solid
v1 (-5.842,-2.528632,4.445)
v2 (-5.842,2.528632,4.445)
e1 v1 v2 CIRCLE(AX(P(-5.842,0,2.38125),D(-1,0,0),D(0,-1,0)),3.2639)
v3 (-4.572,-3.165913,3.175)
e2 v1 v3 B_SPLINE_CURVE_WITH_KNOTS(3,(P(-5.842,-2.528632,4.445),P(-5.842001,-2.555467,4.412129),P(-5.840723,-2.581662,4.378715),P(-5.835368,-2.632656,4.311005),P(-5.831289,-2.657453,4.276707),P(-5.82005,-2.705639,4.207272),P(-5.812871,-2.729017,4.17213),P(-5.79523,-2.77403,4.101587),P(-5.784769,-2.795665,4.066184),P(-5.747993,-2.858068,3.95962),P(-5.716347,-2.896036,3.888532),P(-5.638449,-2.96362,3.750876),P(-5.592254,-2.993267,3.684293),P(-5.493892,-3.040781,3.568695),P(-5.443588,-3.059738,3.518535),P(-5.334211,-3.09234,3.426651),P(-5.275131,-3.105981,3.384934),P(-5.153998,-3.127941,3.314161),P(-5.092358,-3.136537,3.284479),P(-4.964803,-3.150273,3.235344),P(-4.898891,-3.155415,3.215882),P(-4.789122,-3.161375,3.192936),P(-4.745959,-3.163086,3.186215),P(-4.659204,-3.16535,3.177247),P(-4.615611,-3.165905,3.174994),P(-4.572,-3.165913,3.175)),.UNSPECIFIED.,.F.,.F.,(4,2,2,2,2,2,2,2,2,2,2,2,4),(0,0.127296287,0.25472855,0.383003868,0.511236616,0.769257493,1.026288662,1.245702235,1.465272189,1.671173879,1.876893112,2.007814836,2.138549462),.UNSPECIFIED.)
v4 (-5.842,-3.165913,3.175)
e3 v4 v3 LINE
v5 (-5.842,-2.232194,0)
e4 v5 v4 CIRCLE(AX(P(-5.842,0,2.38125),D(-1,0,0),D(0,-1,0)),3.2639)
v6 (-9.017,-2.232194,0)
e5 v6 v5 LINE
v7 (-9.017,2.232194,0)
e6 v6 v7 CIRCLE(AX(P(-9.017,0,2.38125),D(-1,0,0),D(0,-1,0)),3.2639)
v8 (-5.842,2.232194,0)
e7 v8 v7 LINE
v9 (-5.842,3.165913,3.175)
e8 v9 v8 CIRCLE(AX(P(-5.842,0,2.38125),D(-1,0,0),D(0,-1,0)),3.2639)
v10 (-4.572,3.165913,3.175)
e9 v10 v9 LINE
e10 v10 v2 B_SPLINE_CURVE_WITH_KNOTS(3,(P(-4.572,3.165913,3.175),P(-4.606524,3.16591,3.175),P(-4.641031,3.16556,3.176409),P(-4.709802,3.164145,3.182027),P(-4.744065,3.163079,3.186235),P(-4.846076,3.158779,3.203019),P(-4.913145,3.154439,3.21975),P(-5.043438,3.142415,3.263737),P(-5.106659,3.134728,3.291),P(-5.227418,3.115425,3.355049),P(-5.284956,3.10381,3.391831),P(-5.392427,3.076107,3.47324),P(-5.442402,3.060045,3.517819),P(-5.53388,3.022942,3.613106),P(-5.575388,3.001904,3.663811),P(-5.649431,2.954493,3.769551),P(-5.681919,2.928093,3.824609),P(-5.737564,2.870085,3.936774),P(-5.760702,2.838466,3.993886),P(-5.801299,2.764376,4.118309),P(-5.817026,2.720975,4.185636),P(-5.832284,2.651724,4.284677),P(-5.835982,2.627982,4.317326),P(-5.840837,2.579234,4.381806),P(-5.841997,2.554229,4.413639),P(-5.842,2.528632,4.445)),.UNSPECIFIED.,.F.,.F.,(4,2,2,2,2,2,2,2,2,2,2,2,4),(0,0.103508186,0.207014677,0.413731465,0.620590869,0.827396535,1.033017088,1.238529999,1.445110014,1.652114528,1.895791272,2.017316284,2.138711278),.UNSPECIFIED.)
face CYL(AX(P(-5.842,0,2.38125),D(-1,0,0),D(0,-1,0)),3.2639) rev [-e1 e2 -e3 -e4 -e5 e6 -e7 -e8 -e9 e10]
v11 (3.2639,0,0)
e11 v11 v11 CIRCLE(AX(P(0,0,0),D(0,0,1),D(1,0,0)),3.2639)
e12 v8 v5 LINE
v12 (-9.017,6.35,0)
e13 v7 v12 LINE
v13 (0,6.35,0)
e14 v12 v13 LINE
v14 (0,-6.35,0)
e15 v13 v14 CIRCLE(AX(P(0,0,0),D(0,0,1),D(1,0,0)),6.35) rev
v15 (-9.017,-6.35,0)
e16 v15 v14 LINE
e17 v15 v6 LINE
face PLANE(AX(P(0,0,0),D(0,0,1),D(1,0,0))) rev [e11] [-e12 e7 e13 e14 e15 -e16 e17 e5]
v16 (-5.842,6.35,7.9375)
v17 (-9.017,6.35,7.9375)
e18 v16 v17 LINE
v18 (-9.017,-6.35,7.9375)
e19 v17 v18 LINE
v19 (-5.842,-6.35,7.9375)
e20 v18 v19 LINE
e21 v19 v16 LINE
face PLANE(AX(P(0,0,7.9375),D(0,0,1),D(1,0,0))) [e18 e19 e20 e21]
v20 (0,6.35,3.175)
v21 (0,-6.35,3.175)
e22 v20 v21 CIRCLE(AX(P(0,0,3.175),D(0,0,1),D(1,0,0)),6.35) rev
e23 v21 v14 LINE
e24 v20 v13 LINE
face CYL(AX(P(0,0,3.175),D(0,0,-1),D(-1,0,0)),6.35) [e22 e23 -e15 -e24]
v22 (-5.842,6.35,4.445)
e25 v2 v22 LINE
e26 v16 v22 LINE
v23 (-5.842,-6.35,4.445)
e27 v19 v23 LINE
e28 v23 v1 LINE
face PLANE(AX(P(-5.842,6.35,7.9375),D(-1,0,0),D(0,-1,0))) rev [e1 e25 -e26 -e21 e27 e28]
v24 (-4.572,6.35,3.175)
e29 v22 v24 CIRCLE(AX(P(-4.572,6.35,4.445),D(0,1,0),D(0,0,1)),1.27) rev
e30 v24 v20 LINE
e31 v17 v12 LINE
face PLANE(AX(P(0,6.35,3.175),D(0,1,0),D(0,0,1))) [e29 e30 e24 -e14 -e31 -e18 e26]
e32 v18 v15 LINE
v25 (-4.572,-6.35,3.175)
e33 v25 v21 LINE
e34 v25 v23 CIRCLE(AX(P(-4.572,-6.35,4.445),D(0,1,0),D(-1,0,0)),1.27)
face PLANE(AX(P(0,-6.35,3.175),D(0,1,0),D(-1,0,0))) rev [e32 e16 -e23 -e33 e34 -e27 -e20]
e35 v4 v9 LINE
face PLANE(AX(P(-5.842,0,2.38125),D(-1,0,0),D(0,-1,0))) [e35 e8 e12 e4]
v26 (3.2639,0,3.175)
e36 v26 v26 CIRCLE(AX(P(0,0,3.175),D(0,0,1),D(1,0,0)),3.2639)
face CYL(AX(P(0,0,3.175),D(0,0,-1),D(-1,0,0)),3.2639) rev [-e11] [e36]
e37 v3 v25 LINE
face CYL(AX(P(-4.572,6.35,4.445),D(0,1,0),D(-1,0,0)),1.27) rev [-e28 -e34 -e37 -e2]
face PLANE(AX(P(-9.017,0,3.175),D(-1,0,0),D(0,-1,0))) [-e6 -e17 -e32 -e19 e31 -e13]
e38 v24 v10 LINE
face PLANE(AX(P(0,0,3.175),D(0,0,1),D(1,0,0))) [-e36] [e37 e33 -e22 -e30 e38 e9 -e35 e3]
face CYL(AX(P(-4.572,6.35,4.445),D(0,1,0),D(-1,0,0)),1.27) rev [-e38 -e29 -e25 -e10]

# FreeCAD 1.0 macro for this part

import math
import FreeCAD as App
import Part
import Sketcher
from FreeCAD import Vector
Q = App.Units.Quantity


def edges_at(feature, points):
    """Names of the edges that pass closest to the given points."""
    edges = feature.Shape.Edges
    near = lambda p: min(range(len(edges)), key=lambda i: edges[i].distToShape(Part.Vertex(*p))[0])
    return sorted({f"Edge{near(p) + 1}" for p in points})

doc = App.newDocument("Part")
body = doc.addObject("PartDesign::Body", "Body")

# Sketch on XY plane
sketch1 = body.newObject("Sketcher::SketchObject", "Sketch")
sketch1.AttachmentSupport = (doc.getObject("XY_Plane"), [""])
sketch1.MapMode = "FlatFace"
sketch1.addGeometry(Part.ArcOfCircle(Part.Circle(Vector(0, 0, 0), Vector(0, 0, 1), 6.3), math.radians(-90), math.radians(90)), False)
sketch1.addGeometry(Part.LineSegment(Vector(0, 6.3, 0), Vector(-9, 6.3, 0)), False)
sketch1.addGeometry(Part.LineSegment(Vector(-9, 6.3, 0), Vector(-9, -6.3, 0)), False)
sketch1.addGeometry(Part.LineSegment(Vector(-9, -6.3, 0), Vector(0, -6.3, 0)), False)
sketch1.addGeometry(Part.Circle(Vector(0, 0, 0), Vector(0, 0, 1), 3.3), False)
sketch1.addConstraint(Sketcher.Constraint("Tangent", 0, 2, 1, 1))
sketch1.addConstraint(Sketcher.Constraint("Coincident", 1, 2, 2, 1))
sketch1.addConstraint(Sketcher.Constraint("Coincident", 2, 2, 3, 1))
sketch1.addConstraint(Sketcher.Constraint("Tangent", 3, 2, 0, 1))
sketch1.addConstraint(Sketcher.Constraint("Horizontal", 1))
sketch1.addConstraint(Sketcher.Constraint("Vertical", 2))
sketch1.addConstraint(Sketcher.Constraint("Horizontal", 3))
sketch1.addConstraint(Sketcher.Constraint("Coincident", 0, 3, -1, 1))
sketch1.addConstraint(Sketcher.Constraint("Coincident", 4, 3, -1, 1))
sketch1.addConstraint(Sketcher.Constraint("Radius", 0, Q("0.25 in")))
sketch1.addConstraint(Sketcher.Constraint("Diameter", 4, Q("0.257 in")))
sketch1.addConstraint(Sketcher.Constraint("DistanceX", 1, 2, 1, 1, Q("0.355 in")))
pad1 = body.newObject("PartDesign::Pad", "Pad")
pad1.Profile = sketch1
pad1.Length = Q("0.125 in")

# Sketch on XY plane
sketch2 = body.newObject("Sketcher::SketchObject", "Sketch001")
sketch2.AttachmentSupport = (doc.getObject("XY_Plane"), [""])
sketch2.MapMode = "FlatFace"
sketch2.AttachmentOffset = App.Placement(Vector(0, 0, 0.125 * 25.4), App.Rotation())
sketch2.addGeometry(Part.LineSegment(Vector(-9, 6.3, 0), Vector(-9, -6.3, 0)), False)
sketch2.addGeometry(Part.LineSegment(Vector(-9, -6.3, 0), Vector(-5.8, -6.3, 0)), False)
sketch2.addGeometry(Part.LineSegment(Vector(-5.8, -6.3, 0), Vector(-5.8, 6.3, 0)), False)
sketch2.addGeometry(Part.LineSegment(Vector(-5.8, 6.3, 0), Vector(-9, 6.3, 0)), False)
sketch2.addConstraint(Sketcher.Constraint("Coincident", 0, 2, 1, 1))
sketch2.addConstraint(Sketcher.Constraint("Coincident", 1, 2, 2, 1))
sketch2.addConstraint(Sketcher.Constraint("Coincident", 2, 2, 3, 1))
sketch2.addConstraint(Sketcher.Constraint("Coincident", 3, 2, 0, 1))
sketch2.addConstraint(Sketcher.Constraint("Vertical", 0))
sketch2.addConstraint(Sketcher.Constraint("Horizontal", 1))
sketch2.addConstraint(Sketcher.Constraint("Vertical", 2))
sketch2.addConstraint(Sketcher.Constraint("Horizontal", 3))
sketch2.addConstraint(Sketcher.Constraint("DistanceY", 0, 2, 0, 1, Q("0.5 in")))
sketch2.addConstraint(Sketcher.Constraint("DistanceX", 1, 1, 1, 2, Q("0.125 in")))
sketch2.addConstraint(Sketcher.Constraint("DistanceY", 0, 2, -1, 1, Q("0.25 in")))
sketch2.addConstraint(Sketcher.Constraint("DistanceX", 1, 2, -1, 1, Q("0.23 in")))
pad2 = body.newObject("PartDesign::Pad", "Pad001")
pad2.Profile = sketch2
pad2.Length = Q("0.1875 in")

# Sketch on YZ plane
sketch3 = body.newObject("Sketcher::SketchObject", "Sketch002")
sketch3.AttachmentSupport = (doc.getObject("YZ_Plane"), [""])
sketch3.MapMode = "FlatFace"
sketch3.AttachmentOffset = App.Placement(Vector(0, 0, -0.355 * 25.4), App.Rotation())
sketch3.addGeometry(Part.Circle(Vector(0, 2.4, 0), Vector(0, 0, 1), 3.3), False)
sketch3.addConstraint(Sketcher.Constraint("PointOnObject", 0, 3, -2))
sketch3.addConstraint(Sketcher.Constraint("Diameter", 0, Q("0.257 in")))
sketch3.addConstraint(Sketcher.Constraint("DistanceY", -1, 1, 0, 3, Q("0.09375 in")))
pocket1 = body.newObject("PartDesign::Pocket", "Pocket")
pocket1.Profile = sketch3
pocket1.Length = Q("0.125 in")
pocket1.Reversed = True
doc.recompute()

fillet = body.newObject("PartDesign::Fillet", "Fillet")
fillet.Base = (pocket1, edges_at(pocket1, [(-5.842, -4.758, 3.175), (-5.842, 4.758, 3.175)]))
fillet.Radius = Q("0.05 in")

doc.recompute()
